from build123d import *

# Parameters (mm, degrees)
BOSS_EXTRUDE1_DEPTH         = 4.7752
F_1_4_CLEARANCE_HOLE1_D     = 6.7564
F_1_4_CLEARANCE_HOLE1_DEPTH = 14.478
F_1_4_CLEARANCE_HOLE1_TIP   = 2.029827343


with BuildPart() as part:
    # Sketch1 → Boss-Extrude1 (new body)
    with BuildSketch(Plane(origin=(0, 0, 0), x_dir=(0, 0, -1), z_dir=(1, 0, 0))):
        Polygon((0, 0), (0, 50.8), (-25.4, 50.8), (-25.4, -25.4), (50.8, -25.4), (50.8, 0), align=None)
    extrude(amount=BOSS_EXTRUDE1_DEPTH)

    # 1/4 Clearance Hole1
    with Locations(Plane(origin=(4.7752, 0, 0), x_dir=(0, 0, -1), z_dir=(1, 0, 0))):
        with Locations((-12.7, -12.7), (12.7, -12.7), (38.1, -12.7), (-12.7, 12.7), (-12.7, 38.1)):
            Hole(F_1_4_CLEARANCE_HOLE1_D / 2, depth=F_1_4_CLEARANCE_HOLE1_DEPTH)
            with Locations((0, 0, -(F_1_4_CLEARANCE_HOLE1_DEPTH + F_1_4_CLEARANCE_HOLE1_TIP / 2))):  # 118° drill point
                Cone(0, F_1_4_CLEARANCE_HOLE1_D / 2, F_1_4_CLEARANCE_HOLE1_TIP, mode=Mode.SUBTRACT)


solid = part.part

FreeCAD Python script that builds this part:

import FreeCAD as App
import Part
import Sketcher
Q = App.Units.Quantity

doc = App.newDocument("Part")
params = doc.addObject("Spreadsheet::Sheet", "Params")
for row, (alias, value) in enumerate([
    ("sketch1_width", "2 in"),
    ("sketch1_width2", "3 in"),
    ("pad1_length", "0.188 in"),
    ("sketch2_diameter", "0.266 in"),
    ("hole_diameter", "0.266 in"),
    ("hole_depth", "0.57 in"),
], start=1):
    params.set(f"A{row}", alias)
    params.set(f"B{row}", "=" + value)
    params.setAlias(f"B{row}", alias)

body = doc.addObject("PartDesign::Body", "Body")

# Sketch on YZ plane
sketch1 = doc.addObject("Sketcher::SketchObject", "Sketch")
body.addObject(sketch1)
sketch1.AttachmentSupport = (doc.YZ_Plane, [""])
sketch1.MapMode = "FlatFace"
sketch1.addGeometry(Part.LineSegment(App.Vector(0, 0, 0), App.Vector(51, 0, 0)), False)
sketch1.addGeometry(Part.LineSegment(App.Vector(51, 0, 0), App.Vector(51, 25, 0)), False)
sketch1.addGeometry(Part.LineSegment(App.Vector(51, 25, 0), App.Vector(-25, 25, 0)), False)
sketch1.addGeometry(Part.LineSegment(App.Vector(-25, 25, 0), App.Vector(-25, -51, 0)), False)
sketch1.addGeometry(Part.LineSegment(App.Vector(-25, -51, 0), App.Vector(0, -51, 0)), False)
sketch1.addGeometry(Part.LineSegment(App.Vector(0, -51, 0), App.Vector(0, 0, 0)), False)
sketch1.addConstraint(Sketcher.Constraint("Coincident", 0, 2, 1, 1))
sketch1.addConstraint(Sketcher.Constraint("Coincident", 1, 2, 2, 1))
sketch1.addConstraint(Sketcher.Constraint("Coincident", 2, 2, 3, 1))
sketch1.addConstraint(Sketcher.Constraint("Coincident", 3, 2, 4, 1))
sketch1.addConstraint(Sketcher.Constraint("Coincident", 4, 2, 5, 1))
sketch1.addConstraint(Sketcher.Constraint("Coincident", 5, 2, 0, 1))
sketch1.addConstraint(Sketcher.Constraint("Horizontal", 0))
sketch1.addConstraint(Sketcher.Constraint("Vertical", 1))
sketch1.addConstraint(Sketcher.Constraint("Horizontal", 2))
sketch1.addConstraint(Sketcher.Constraint("Vertical", 3))
sketch1.addConstraint(Sketcher.Constraint("Horizontal", 4))
sketch1.addConstraint(Sketcher.Constraint("Vertical", 5))
sketch1.addConstraint(Sketcher.Constraint("Coincident", 5, 2, -1, 1))
sketch1.addConstraint(Sketcher.Constraint("Equal", 4, 1))
sketch1.addConstraint(Sketcher.Constraint("Equal", 2, 3))
sketch1.addConstraint(Sketcher.Constraint("DistanceX", 0, 1, 0, 2, Q("2 in")))
sketch1.addConstraint(Sketcher.Constraint("DistanceX", 2, 2, 2, 1, Q("3 in")))
sketch1.setExpression("Constraints[15]", "Params.sketch1_width")
sketch1.setExpression("Constraints[16]", "Params.sketch1_width2")
pad1 = doc.addObject("PartDesign::Pad", "Pad")
body.addObject(pad1)
pad1.Profile = sketch1
pad1.setExpression("Length", "Params.pad1_length")

# Sketch on YZ plane
sketch2 = doc.addObject("Sketcher::SketchObject", "Sketch001")
body.addObject(sketch2)
sketch2.AttachmentSupport = (doc.YZ_Plane, [""])
sketch2.MapMode = "FlatFace"
sketch2.AttachmentOffset = App.Placement(App.Vector(0, 0, 0.188 * 25.4), App.Rotation())
sketch2.addGeometry(Part.Circle(App.Vector(-12.7, 12.7, 0), App.Vector(0, 0, 1), 3.4), False)
sketch2.addGeometry(Part.Circle(App.Vector(-12.7, -12.7, 0), App.Vector(0, 0, 1), 3.4), False)
sketch2.addGeometry(Part.Circle(App.Vector(-12.7, -38.1, 0), App.Vector(0, 0, 1), 3.4), False)
sketch2.addGeometry(Part.Circle(App.Vector(12.7, 12.7, 0), App.Vector(0, 0, 1), 3.4), False)
sketch2.addGeometry(Part.Circle(App.Vector(38.1, 12.7, 0), App.Vector(0, 0, 1), 3.4), False)
sketch2.addConstraint(Sketcher.Constraint("Equal", 0, 1))
sketch2.addConstraint(Sketcher.Constraint("Equal", 1, 2))
sketch2.addConstraint(Sketcher.Constraint("Equal", 2, 3))
sketch2.addConstraint(Sketcher.Constraint("Equal", 3, 4))
sketch2.addConstraint(Sketcher.Constraint("Symmetric", 1, 3, 3, 3, -1, 1))
sketch2.addConstraint(Sketcher.Constraint("Symmetric", 0, 3, 3, 3, -2))
sketch2.addConstraint(Sketcher.Constraint("Horizontal", 3, 3, 4, 3))
sketch2.addConstraint(Sketcher.Constraint("Vertical", 1, 3, 2, 3))
sketch2.addConstraint(Sketcher.Constraint("Diameter", 0, Q("0.266 in")))
sketch2.addConstraint(Sketcher.Constraint("DistanceY", 1, 3, 0, 3, Q("1 in")))
sketch2.addConstraint(Sketcher.Constraint("DistanceY", 2, 3, 1, 3, Q("1 in")))
sketch2.addConstraint(Sketcher.Constraint("DistanceX", 0, 3, 3, 3, Q("1 in")))
sketch2.addConstraint(Sketcher.Constraint("DistanceX", 3, 3, 4, 3, Q("1 in")))
sketch2.setExpression("Constraints[8]", "Params.sketch2_diameter")
doc.recompute()
hole = doc.addObject("PartDesign::Hole", "Hole")
body.addObject(hole)
hole.Profile = sketch2
hole.ThreadType = "None"
hole.setExpression("Diameter", "Params.hole_diameter")
hole.DepthType = "Dimension"
hole.setExpression("Depth", "Params.hole_depth")
hole.DrillPoint = "Angled"
hole.DrillPointAngle = 118

doc.recompute()
